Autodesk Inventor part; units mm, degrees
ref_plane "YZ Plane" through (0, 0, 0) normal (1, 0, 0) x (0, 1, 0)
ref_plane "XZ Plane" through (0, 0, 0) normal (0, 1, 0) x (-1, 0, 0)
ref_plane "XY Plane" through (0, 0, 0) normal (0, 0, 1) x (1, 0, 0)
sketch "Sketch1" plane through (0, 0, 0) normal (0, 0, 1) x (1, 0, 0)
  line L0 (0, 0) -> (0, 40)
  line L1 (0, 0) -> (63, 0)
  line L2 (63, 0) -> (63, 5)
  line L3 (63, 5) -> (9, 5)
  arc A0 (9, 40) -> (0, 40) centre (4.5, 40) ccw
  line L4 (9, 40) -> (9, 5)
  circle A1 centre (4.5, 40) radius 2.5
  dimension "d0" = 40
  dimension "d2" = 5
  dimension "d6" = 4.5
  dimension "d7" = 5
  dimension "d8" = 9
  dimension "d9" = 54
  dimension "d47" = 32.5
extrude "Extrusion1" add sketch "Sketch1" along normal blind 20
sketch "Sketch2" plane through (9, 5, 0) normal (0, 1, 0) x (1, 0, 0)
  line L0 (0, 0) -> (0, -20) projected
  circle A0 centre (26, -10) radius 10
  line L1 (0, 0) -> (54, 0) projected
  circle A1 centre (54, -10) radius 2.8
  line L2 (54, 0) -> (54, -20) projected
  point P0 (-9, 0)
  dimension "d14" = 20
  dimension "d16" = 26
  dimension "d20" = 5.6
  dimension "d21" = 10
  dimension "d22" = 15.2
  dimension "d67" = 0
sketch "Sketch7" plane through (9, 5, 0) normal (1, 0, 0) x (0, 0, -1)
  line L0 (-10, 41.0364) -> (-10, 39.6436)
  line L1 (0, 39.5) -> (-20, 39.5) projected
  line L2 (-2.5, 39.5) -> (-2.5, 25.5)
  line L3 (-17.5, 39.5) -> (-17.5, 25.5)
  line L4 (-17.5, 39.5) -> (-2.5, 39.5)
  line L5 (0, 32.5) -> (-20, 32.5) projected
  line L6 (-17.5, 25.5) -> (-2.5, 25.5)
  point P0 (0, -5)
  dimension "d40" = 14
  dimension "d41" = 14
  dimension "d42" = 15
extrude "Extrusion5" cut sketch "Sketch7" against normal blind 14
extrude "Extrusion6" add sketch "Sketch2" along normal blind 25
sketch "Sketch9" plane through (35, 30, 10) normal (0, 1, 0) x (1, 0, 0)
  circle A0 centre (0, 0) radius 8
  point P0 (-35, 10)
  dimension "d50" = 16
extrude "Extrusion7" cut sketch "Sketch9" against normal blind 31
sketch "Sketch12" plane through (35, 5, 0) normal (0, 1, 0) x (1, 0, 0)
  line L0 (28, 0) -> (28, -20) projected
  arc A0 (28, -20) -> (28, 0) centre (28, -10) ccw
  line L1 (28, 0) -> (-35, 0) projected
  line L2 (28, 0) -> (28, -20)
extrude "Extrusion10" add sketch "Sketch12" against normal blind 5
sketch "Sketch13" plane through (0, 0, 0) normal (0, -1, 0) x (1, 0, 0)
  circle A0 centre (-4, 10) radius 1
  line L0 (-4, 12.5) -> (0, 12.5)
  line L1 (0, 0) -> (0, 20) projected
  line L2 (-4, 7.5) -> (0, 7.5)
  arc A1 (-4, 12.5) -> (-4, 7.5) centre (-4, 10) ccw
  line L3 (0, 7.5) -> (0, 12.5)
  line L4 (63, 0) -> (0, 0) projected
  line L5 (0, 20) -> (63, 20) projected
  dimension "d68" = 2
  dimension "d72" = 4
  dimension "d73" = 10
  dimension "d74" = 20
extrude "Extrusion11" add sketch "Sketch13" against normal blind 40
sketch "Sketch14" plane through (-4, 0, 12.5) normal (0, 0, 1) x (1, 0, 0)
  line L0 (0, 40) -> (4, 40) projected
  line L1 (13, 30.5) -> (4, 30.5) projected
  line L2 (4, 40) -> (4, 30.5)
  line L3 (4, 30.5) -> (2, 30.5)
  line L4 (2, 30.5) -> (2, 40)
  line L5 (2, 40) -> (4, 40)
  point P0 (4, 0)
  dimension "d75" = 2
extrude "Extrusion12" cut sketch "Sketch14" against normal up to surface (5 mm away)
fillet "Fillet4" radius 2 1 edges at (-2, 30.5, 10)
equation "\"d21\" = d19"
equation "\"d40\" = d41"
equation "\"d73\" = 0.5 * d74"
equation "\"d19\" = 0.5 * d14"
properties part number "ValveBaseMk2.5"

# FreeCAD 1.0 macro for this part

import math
import FreeCAD as App
import Part
import Sketcher

V = App.Vector
Q = App.Units.Quantity


def edges_at(feature, points):
    """Names of the edges that pass closest to the given points."""
    edges = feature.Shape.Edges
    near = lambda p: min(range(len(edges)), key=lambda i: edges[i].distToShape(Part.Vertex(*p))[0])
    return sorted({f"Edge{near(p) + 1}" for p in points})

doc = App.newDocument("Part")
body = doc.addObject("PartDesign::Body", "Body")

# Sketch on XY plane
sketch1 = body.newObject("Sketcher::SketchObject", "Sketch")
sketch1.AttachmentSupport = (doc.getObject("XY_Plane"), [""])
sketch1.MapMode = "FlatFace"
sketch1.addGeometry([
    Part.LineSegment(V(0, 40, 0), V(0, 0, 0)),  # 0
    Part.LineSegment(V(0, 0, 0), V(63, 0, 0)),  # 1
    Part.LineSegment(V(63, 0, 0), V(63, 5, 0)),  # 2
    Part.LineSegment(V(63, 5, 0), V(9, 5, 0)),  # 3
    Part.LineSegment(V(9, 5, 0), V(9, 40, 0)),  # 4
    Part.ArcOfCircle(Part.Circle(V(4.5, 40, 0), V(0, 0, 1), 4.5), math.radians(0), math.radians(180)),  # 5
    Part.Circle(V(4.5, 40, 0), V(0, 0, 1), 2.5),  # 6
], False)
sketch1.addConstraint([
    Sketcher.Constraint("Coincident", 0, 2, 1, 1),
    Sketcher.Constraint("Coincident", 1, 2, 2, 1),
    Sketcher.Constraint("Coincident", 2, 2, 3, 1),
    Sketcher.Constraint("Coincident", 3, 2, 4, 1),
    Sketcher.Constraint("Tangent", 4, 2, 5, 1),
    Sketcher.Constraint("Tangent", 5, 2, 0, 1),
    Sketcher.Constraint("Vertical", 0),
    Sketcher.Constraint("Horizontal", 1),
    Sketcher.Constraint("Vertical", 2),
    Sketcher.Constraint("Horizontal", 3),
    Sketcher.Constraint("Vertical", 4),
    Sketcher.Constraint("Coincident", 0, 2, -1, 1),
    Sketcher.Constraint("Coincident", 6, 3, 5, 3),
    Sketcher.Constraint("Diameter", 6, Q("5 mm")),
    Sketcher.Constraint("Radius", 5, Q("4.5 mm")),
    Sketcher.Constraint("DistanceX", 3, 2, 3, 1, Q("54 mm")),
    Sketcher.Constraint("DistanceY", 0, 2, 0, 1, Q("40 mm")),
    Sketcher.Constraint("DistanceY", 2, 1, 2, 2, Q("5 mm")),
])
pad1 = body.newObject("PartDesign::Pad", "Pad")
pad1.Profile = sketch1
pad1.Length = 20

# Sketch on YZ plane
sketch2 = body.newObject("Sketcher::SketchObject", "Sketch001")
sketch2.AttachmentSupport = (doc.getObject("YZ_Plane"), [""])
sketch2.MapMode = "FlatFace"
sketch2.AttachmentOffset = App.Placement(V(0, 0, 9), App.Rotation())
sketch2.addGeometry([
    Part.LineSegment(V(44, 2, 0), V(44, 18, 0)),
    Part.LineSegment(V(44, 18, 0), V(30, 18, 0)),
    Part.LineSegment(V(30, 18, 0), V(30, 2, 0)),
    Part.LineSegment(V(30, 2, 0), V(44, 2, 0)),
], False)
sketch2.addConstraint([
    Sketcher.Constraint("Coincident", 0, 2, 1, 1),
    Sketcher.Constraint("Coincident", 1, 2, 2, 1),
    Sketcher.Constraint("Coincident", 2, 2, 3, 1),
    Sketcher.Constraint("Coincident", 3, 2, 0, 1),
    Sketcher.Constraint("Vertical", 0),
    Sketcher.Constraint("Horizontal", 1),
    Sketcher.Constraint("Vertical", 2),
    Sketcher.Constraint("Horizontal", 3),
    Sketcher.Constraint("DistanceX", 1, 2, 1, 1, Q("14 mm")),
    Sketcher.Constraint("DistanceY", 0, 1, 0, 2, Q("15 mm")),
    Sketcher.Constraint("DistanceX", -1, 1, 0, 2, Q("44.5 mm")),
    Sketcher.Constraint("DistanceY", -1, 1, 0, 2, Q("17.5 mm")),
])
pocket1 = body.newObject("PartDesign::Pocket", "Pocket")
pocket1.Profile = sketch2
pocket1.Length = 14

# Sketch on XZ plane
sketch3 = body.newObject("Sketcher::SketchObject", "Sketch002")
sketch3.AttachmentSupport = (doc.getObject("XZ_Plane"), [""])
sketch3.MapMode = "FlatFace"
sketch3.AttachmentOffset = App.Placement(V(0, 0, -5), App.Rotation())
sketch3.addGeometry([
    Part.Circle(V(35, 10, 0), V(0, 0, 1), 10),
    Part.Circle(V(63, 10, 0), V(0, 0, 1), 2.8),
], False)
sketch3.addConstraint([
    Sketcher.Constraint("Horizontal", 0, 3, 1, 3),
    Sketcher.Constraint("Diameter", 0, Q("20 mm")),
    Sketcher.Constraint("Diameter", 1, Q("5.6 mm")),
    Sketcher.Constraint("DistanceY", -1, 1, 0, 3, Q("10 mm")),
    Sketcher.Constraint("DistanceX", -1, 1, 0, 3, Q("35 mm")),
    Sketcher.Constraint("DistanceX", -1, 1, 1, 3, Q("63 mm")),
])
pad2 = body.newObject("PartDesign::Pad", "Pad001")
pad2.Profile = sketch3
pad2.Length = 25
pad2.Reversed = True

# Sketch on XZ plane
sketch4 = body.newObject("Sketcher::SketchObject", "Sketch003")
sketch4.AttachmentSupport = (doc.getObject("XZ_Plane"), [""])
sketch4.MapMode = "FlatFace"
sketch4.AttachmentOffset = App.Placement(V(0, 0, -30), App.Rotation())
sketch4.addGeometry(Part.Circle(V(35, 10, 0), V(0, 0, 1), 8), False)
sketch4.addConstraint([
    Sketcher.Constraint("Diameter", 0, Q("16 mm")),
    Sketcher.Constraint("DistanceX", -1, 1, 0, 3, Q("35 mm")),
    Sketcher.Constraint("DistanceY", -1, 1, 0, 3, Q("10 mm")),
])
pocket2 = body.newObject("PartDesign::Pocket", "Pocket001")
pocket2.Profile = sketch4
pocket2.Length = 31
pocket2.Reversed = True

# Sketch on XZ plane
sketch5 = body.newObject("Sketcher::SketchObject", "Sketch004")
sketch5.AttachmentSupport = (doc.getObject("XZ_Plane"), [""])
sketch5.MapMode = "FlatFace"
sketch5.AttachmentOffset = App.Placement(V(0, 0, -5), App.Rotation())
sketch5.addGeometry([
    Part.ArcOfCircle(Part.Circle(V(63, 10, 0), V(0, 0, 1), 10), math.radians(-90), math.radians(90)),
    Part.LineSegment(V(63, 0, 0), V(63, 20, 0)),
], False)
sketch5.addConstraint([
    Sketcher.Constraint("Coincident", 0, 1, 1, 1),
    Sketcher.Constraint("Coincident", 1, 2, 0, 2),
    Sketcher.Constraint("Vertical", 1),
    Sketcher.Constraint("PointOnObject", 0, 1, -1),
    Sketcher.Constraint("Radius", 0, Q("10 mm")),
    Sketcher.Constraint("DistanceX", -1, 1, 0, 3, Q("63 mm")),
    Sketcher.Constraint("DistanceX", -1, 1, 0, 1, Q("63 mm")),
])
pad3 = body.newObject("PartDesign::Pad", "Pad002")
pad3.Profile = sketch5
pad3.Length = 5

# Sketch on XZ plane
sketch6 = body.newObject("Sketcher::SketchObject", "Sketch005")
sketch6.AttachmentSupport = (doc.getObject("XZ_Plane"), [""])
sketch6.MapMode = "FlatFace"
sketch6.addGeometry([
    Part.LineSegment(V(0, 12.5, 0), V(-4, 12.5, 0)),  # 0
    Part.ArcOfCircle(Part.Circle(V(-4, 10, 0), V(0, 0, 1), 2.5), math.radians(90), math.radians(270)),  # 1
    Part.LineSegment(V(-4, 7.5, 0), V(0, 7.5, 0)),  # 2
    Part.LineSegment(V(0, 7.5, 0), V(0, 12.5, 0)),  # 3
    Part.Circle(V(-4, 10, 0), V(0, 0, 1), 1),  # 4
], False)
sketch6.addConstraint([
    Sketcher.Constraint("Tangent", 0, 2, 1, 1),
    Sketcher.Constraint("Tangent", 1, 2, 2, 1),
    Sketcher.Constraint("Coincident", 2, 2, 3, 1),
    Sketcher.Constraint("Coincident", 3, 2, 0, 1),
    Sketcher.Constraint("Horizontal", 0),
    Sketcher.Constraint("Horizontal", 2),
    Sketcher.Constraint("Vertical", 3),
    Sketcher.Constraint("Coincident", 4, 3, 1, 3),
    Sketcher.Constraint("PointOnObject", 2, 2, -2),
    Sketcher.Constraint("Diameter", 4, Q("2 mm")),
    Sketcher.Constraint("DistanceX", 0, 2, 0, 1, Q("4 mm")),
    Sketcher.Constraint("DistanceY", -1, 1, 1, 3, Q("10 mm")),
    Sketcher.Constraint("Radius", 1, Q("2.5 mm")),
])
pad4 = body.newObject("PartDesign::Pad", "Pad003")
pad4.Profile = sketch6
pad4.Length = 40
pad4.Reversed = True

# Sketch on XY plane
sketch7 = body.newObject("Sketcher::SketchObject", "Sketch006")
sketch7.AttachmentSupport = (doc.getObject("XY_Plane"), [""])
sketch7.MapMode = "FlatFace"
sketch7.AttachmentOffset = App.Placement(V(0, 0, 12.5), App.Rotation())
sketch7.addGeometry([
    Part.LineSegment(V(0, 40, 0), V(-2, 40, 0)),
    Part.LineSegment(V(-2, 40, 0), V(-2, 30.5, 0)),
    Part.LineSegment(V(-2, 30.5, 0), V(0, 30.5, 0)),
    Part.LineSegment(V(0, 30.5, 0), V(0, 40, 0)),
], False)
sketch7.addConstraint([
    Sketcher.Constraint("Coincident", 0, 2, 1, 1),
    Sketcher.Constraint("Coincident", 1, 2, 2, 1),
    Sketcher.Constraint("Coincident", 2, 2, 3, 1),
    Sketcher.Constraint("Coincident", 3, 2, 0, 1),
    Sketcher.Constraint("Horizontal", 0),
    Sketcher.Constraint("Vertical", 1),
    Sketcher.Constraint("Horizontal", 2),
    Sketcher.Constraint("Vertical", 3),
    Sketcher.Constraint("PointOnObject", 2, 2, -2),
    Sketcher.Constraint("DistanceX", 0, 2, 0, 1, Q("2 mm")),
    Sketcher.Constraint("DistanceY", 1, 2, 1, 1, Q("9.5 mm")),
    Sketcher.Constraint("DistanceY", -1, 1, 0, 2, Q("40 mm")),
])
pocket3 = body.newObject("PartDesign::Pocket", "Pocket002")
pocket3.Profile = sketch7
pocket3.Length = 5
doc.recompute()

fillet = body.newObject("PartDesign::Fillet", "Fillet")
fillet.Base = (pocket3, edges_at(pocket3, [(-2, 30.5, 10)]))
fillet.Radius = 2

doc.recompute()
